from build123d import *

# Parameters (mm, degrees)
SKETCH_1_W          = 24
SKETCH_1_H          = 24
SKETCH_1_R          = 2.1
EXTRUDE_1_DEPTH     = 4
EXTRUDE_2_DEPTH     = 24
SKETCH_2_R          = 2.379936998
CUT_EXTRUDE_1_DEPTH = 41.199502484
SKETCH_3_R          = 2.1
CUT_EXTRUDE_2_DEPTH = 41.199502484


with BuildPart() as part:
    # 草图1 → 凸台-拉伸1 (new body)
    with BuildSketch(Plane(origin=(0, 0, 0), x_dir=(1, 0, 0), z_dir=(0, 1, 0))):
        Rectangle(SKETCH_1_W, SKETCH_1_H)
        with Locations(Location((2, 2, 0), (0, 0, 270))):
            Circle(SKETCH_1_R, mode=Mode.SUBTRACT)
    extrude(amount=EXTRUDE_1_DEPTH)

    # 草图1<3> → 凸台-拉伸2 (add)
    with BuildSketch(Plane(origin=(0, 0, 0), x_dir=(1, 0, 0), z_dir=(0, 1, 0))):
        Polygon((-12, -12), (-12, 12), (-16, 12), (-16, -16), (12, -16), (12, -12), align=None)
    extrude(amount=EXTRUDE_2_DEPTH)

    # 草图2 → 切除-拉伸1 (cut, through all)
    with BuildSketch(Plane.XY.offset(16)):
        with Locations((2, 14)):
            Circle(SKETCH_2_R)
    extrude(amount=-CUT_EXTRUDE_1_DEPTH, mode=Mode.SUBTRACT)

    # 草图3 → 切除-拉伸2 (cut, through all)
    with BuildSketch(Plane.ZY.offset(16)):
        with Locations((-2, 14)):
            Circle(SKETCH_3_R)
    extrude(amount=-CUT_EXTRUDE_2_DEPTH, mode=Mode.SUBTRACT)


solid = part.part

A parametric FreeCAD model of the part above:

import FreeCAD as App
import Part
import Sketcher
Q = App.Units.Quantity

doc = App.newDocument("Part")
body = doc.addObject("PartDesign::Body", "Body")

sketch1 = doc.addObject("Sketcher::SketchObject", "Sketch")
body.addObject(sketch1)
sketch1.AttachmentSupport = (doc.XZ_Plane, [""])
sketch1.MapMode = "FlatFace"
sketch1.addGeometry([
    Part.LineSegment(App.Vector(-12, -12, 0), App.Vector(-12, 12, 0)),
    Part.LineSegment(App.Vector(-12, 12, 0), App.Vector(12, 12, 0)),
    Part.LineSegment(App.Vector(12, 12, 0), App.Vector(12, -12, 0)),
    Part.LineSegment(App.Vector(12, -12, 0), App.Vector(-12, -12, 0)),
    Part.Circle(App.Vector(2, -2, 0), App.Vector(0, 0, 1), 2.1),
], False)
sketch1.addConstraint([
    Sketcher.Constraint("Coincident", 0, 2, 1, 1),
    Sketcher.Constraint("Coincident", 1, 2, 2, 1),
    Sketcher.Constraint("Coincident", 2, 2, 3, 1),
    Sketcher.Constraint("Coincident", 3, 2, 0, 1),
    Sketcher.Constraint("Vertical", 0),
    Sketcher.Constraint("Horizontal", 1),
    Sketcher.Constraint("Vertical", 2),
    Sketcher.Constraint("Horizontal", 3),
    Sketcher.Constraint("Symmetric", 0, 2, 2, 2, -1, 1),
    Sketcher.Constraint("Equal", 3, 0),
    Sketcher.Constraint("Diameter", 4, Q("4.2 mm")),
    Sketcher.Constraint("DistanceX", 1, 1, 1, 2, Q("24 mm")),
    Sketcher.Constraint("DistanceX", -1, 1, 4, 3, Q("2 mm")),
    Sketcher.Constraint("DistanceY", 4, 3, -1, 1, Q("2 mm")),
])
pad1 = doc.addObject("PartDesign::Pad", "Pad")
body.addObject(pad1)
pad1.Profile = sketch1
pad1.Length = 4
pad1.Reversed = True

sketch2 = doc.addObject("Sketcher::SketchObject", "Sketch001")
body.addObject(sketch2)
sketch2.AttachmentSupport = (doc.XZ_Plane, [""])
sketch2.MapMode = "FlatFace"
sketch2.addGeometry([
    Part.LineSegment(App.Vector(-12, 12, 0), App.Vector(-12, -12, 0)),
    Part.LineSegment(App.Vector(-12, -12, 0), App.Vector(-16, -12, 0)),
    Part.LineSegment(App.Vector(-16, -12, 0), App.Vector(-16, 16, 0)),
    Part.LineSegment(App.Vector(-16, 16, 0), App.Vector(12, 16, 0)),
    Part.LineSegment(App.Vector(12, 16, 0), App.Vector(12, 12, 0)),
    Part.LineSegment(App.Vector(12, 12, 0), App.Vector(-12, 12, 0)),
], False)
sketch2.addConstraint([
    Sketcher.Constraint("Coincident", 0, 2, 1, 1),
    Sketcher.Constraint("Coincident", 1, 2, 2, 1),
    Sketcher.Constraint("Coincident", 2, 2, 3, 1),
    Sketcher.Constraint("Coincident", 3, 2, 4, 1),
    Sketcher.Constraint("Coincident", 4, 2, 5, 1),
    Sketcher.Constraint("Coincident", 5, 2, 0, 1),
    Sketcher.Constraint("Vertical", 0),
    Sketcher.Constraint("Horizontal", 1),
    Sketcher.Constraint("Vertical", 2),
    Sketcher.Constraint("Horizontal", 3),
    Sketcher.Constraint("Vertical", 4),
    Sketcher.Constraint("Horizontal", 5),
    Sketcher.Constraint("Symmetric", 0, 2, 4, 2, -1, 1),
    Sketcher.Constraint("Equal", 5, 0),
    Sketcher.Constraint("Equal", 3, 2),
    Sketcher.Constraint("DistanceX", 1, 2, 1, 1, Q("4 mm")),
    Sketcher.Constraint("DistanceX", 3, 1, 3, 2, Q("28 mm")),
])
pad2 = doc.addObject("PartDesign::Pad", "Pad001")
body.addObject(pad2)
pad2.Profile = sketch2
pad2.Length = 24
pad2.Reversed = True

sketch3 = doc.addObject("Sketcher::SketchObject", "Sketch002")
body.addObject(sketch3)
sketch3.AttachmentSupport = (doc.XY_Plane, [""])
sketch3.MapMode = "FlatFace"
sketch3.AttachmentOffset = App.Placement(App.Vector(0, 0, 16), App.Rotation())
sketch3.addGeometry(Part.Circle(App.Vector(2, 14, 0), App.Vector(0, 0, 1), 2.4), False)
sketch3.addConstraint([
    Sketcher.Constraint("DistanceX", -1, 1, 0, 3, Q("2 mm")),
    Sketcher.Constraint("DistanceY", -1, 1, 0, 3, Q("14 mm")),
    Sketcher.Constraint("Diameter", 0, Q("4.759874 mm")),
])
pocket1 = doc.addObject("PartDesign::Pocket", "Pocket")
body.addObject(pocket1)
pocket1.Profile = sketch3
pocket1.Type = "ThroughAll"

sketch4 = doc.addObject("Sketcher::SketchObject", "Sketch003")
body.addObject(sketch4)
sketch4.AttachmentSupport = (doc.YZ_Plane, [""])
sketch4.MapMode = "FlatFace"
sketch4.AttachmentOffset = App.Placement(App.Vector(0, 0, -16), App.Rotation())
sketch4.addGeometry(Part.Circle(App.Vector(14, -2, 0), App.Vector(0, 0, 1), 2.1), False)
sketch4.addConstraint([
    Sketcher.Constraint("Diameter", 0, Q("4.2 mm")),
    Sketcher.Constraint("DistanceX", -1, 1, 0, 3, Q("14 mm")),
    Sketcher.Constraint("DistanceY", 0, 3, -1, 1, Q("2 mm")),
])
pocket2 = doc.addObject("PartDesign::Pocket", "Pocket001")
body.addObject(pocket2)
pocket2.Profile = sketch4
pocket2.Type = "ThroughAll"
pocket2.Reversed = True

doc.recompute()
